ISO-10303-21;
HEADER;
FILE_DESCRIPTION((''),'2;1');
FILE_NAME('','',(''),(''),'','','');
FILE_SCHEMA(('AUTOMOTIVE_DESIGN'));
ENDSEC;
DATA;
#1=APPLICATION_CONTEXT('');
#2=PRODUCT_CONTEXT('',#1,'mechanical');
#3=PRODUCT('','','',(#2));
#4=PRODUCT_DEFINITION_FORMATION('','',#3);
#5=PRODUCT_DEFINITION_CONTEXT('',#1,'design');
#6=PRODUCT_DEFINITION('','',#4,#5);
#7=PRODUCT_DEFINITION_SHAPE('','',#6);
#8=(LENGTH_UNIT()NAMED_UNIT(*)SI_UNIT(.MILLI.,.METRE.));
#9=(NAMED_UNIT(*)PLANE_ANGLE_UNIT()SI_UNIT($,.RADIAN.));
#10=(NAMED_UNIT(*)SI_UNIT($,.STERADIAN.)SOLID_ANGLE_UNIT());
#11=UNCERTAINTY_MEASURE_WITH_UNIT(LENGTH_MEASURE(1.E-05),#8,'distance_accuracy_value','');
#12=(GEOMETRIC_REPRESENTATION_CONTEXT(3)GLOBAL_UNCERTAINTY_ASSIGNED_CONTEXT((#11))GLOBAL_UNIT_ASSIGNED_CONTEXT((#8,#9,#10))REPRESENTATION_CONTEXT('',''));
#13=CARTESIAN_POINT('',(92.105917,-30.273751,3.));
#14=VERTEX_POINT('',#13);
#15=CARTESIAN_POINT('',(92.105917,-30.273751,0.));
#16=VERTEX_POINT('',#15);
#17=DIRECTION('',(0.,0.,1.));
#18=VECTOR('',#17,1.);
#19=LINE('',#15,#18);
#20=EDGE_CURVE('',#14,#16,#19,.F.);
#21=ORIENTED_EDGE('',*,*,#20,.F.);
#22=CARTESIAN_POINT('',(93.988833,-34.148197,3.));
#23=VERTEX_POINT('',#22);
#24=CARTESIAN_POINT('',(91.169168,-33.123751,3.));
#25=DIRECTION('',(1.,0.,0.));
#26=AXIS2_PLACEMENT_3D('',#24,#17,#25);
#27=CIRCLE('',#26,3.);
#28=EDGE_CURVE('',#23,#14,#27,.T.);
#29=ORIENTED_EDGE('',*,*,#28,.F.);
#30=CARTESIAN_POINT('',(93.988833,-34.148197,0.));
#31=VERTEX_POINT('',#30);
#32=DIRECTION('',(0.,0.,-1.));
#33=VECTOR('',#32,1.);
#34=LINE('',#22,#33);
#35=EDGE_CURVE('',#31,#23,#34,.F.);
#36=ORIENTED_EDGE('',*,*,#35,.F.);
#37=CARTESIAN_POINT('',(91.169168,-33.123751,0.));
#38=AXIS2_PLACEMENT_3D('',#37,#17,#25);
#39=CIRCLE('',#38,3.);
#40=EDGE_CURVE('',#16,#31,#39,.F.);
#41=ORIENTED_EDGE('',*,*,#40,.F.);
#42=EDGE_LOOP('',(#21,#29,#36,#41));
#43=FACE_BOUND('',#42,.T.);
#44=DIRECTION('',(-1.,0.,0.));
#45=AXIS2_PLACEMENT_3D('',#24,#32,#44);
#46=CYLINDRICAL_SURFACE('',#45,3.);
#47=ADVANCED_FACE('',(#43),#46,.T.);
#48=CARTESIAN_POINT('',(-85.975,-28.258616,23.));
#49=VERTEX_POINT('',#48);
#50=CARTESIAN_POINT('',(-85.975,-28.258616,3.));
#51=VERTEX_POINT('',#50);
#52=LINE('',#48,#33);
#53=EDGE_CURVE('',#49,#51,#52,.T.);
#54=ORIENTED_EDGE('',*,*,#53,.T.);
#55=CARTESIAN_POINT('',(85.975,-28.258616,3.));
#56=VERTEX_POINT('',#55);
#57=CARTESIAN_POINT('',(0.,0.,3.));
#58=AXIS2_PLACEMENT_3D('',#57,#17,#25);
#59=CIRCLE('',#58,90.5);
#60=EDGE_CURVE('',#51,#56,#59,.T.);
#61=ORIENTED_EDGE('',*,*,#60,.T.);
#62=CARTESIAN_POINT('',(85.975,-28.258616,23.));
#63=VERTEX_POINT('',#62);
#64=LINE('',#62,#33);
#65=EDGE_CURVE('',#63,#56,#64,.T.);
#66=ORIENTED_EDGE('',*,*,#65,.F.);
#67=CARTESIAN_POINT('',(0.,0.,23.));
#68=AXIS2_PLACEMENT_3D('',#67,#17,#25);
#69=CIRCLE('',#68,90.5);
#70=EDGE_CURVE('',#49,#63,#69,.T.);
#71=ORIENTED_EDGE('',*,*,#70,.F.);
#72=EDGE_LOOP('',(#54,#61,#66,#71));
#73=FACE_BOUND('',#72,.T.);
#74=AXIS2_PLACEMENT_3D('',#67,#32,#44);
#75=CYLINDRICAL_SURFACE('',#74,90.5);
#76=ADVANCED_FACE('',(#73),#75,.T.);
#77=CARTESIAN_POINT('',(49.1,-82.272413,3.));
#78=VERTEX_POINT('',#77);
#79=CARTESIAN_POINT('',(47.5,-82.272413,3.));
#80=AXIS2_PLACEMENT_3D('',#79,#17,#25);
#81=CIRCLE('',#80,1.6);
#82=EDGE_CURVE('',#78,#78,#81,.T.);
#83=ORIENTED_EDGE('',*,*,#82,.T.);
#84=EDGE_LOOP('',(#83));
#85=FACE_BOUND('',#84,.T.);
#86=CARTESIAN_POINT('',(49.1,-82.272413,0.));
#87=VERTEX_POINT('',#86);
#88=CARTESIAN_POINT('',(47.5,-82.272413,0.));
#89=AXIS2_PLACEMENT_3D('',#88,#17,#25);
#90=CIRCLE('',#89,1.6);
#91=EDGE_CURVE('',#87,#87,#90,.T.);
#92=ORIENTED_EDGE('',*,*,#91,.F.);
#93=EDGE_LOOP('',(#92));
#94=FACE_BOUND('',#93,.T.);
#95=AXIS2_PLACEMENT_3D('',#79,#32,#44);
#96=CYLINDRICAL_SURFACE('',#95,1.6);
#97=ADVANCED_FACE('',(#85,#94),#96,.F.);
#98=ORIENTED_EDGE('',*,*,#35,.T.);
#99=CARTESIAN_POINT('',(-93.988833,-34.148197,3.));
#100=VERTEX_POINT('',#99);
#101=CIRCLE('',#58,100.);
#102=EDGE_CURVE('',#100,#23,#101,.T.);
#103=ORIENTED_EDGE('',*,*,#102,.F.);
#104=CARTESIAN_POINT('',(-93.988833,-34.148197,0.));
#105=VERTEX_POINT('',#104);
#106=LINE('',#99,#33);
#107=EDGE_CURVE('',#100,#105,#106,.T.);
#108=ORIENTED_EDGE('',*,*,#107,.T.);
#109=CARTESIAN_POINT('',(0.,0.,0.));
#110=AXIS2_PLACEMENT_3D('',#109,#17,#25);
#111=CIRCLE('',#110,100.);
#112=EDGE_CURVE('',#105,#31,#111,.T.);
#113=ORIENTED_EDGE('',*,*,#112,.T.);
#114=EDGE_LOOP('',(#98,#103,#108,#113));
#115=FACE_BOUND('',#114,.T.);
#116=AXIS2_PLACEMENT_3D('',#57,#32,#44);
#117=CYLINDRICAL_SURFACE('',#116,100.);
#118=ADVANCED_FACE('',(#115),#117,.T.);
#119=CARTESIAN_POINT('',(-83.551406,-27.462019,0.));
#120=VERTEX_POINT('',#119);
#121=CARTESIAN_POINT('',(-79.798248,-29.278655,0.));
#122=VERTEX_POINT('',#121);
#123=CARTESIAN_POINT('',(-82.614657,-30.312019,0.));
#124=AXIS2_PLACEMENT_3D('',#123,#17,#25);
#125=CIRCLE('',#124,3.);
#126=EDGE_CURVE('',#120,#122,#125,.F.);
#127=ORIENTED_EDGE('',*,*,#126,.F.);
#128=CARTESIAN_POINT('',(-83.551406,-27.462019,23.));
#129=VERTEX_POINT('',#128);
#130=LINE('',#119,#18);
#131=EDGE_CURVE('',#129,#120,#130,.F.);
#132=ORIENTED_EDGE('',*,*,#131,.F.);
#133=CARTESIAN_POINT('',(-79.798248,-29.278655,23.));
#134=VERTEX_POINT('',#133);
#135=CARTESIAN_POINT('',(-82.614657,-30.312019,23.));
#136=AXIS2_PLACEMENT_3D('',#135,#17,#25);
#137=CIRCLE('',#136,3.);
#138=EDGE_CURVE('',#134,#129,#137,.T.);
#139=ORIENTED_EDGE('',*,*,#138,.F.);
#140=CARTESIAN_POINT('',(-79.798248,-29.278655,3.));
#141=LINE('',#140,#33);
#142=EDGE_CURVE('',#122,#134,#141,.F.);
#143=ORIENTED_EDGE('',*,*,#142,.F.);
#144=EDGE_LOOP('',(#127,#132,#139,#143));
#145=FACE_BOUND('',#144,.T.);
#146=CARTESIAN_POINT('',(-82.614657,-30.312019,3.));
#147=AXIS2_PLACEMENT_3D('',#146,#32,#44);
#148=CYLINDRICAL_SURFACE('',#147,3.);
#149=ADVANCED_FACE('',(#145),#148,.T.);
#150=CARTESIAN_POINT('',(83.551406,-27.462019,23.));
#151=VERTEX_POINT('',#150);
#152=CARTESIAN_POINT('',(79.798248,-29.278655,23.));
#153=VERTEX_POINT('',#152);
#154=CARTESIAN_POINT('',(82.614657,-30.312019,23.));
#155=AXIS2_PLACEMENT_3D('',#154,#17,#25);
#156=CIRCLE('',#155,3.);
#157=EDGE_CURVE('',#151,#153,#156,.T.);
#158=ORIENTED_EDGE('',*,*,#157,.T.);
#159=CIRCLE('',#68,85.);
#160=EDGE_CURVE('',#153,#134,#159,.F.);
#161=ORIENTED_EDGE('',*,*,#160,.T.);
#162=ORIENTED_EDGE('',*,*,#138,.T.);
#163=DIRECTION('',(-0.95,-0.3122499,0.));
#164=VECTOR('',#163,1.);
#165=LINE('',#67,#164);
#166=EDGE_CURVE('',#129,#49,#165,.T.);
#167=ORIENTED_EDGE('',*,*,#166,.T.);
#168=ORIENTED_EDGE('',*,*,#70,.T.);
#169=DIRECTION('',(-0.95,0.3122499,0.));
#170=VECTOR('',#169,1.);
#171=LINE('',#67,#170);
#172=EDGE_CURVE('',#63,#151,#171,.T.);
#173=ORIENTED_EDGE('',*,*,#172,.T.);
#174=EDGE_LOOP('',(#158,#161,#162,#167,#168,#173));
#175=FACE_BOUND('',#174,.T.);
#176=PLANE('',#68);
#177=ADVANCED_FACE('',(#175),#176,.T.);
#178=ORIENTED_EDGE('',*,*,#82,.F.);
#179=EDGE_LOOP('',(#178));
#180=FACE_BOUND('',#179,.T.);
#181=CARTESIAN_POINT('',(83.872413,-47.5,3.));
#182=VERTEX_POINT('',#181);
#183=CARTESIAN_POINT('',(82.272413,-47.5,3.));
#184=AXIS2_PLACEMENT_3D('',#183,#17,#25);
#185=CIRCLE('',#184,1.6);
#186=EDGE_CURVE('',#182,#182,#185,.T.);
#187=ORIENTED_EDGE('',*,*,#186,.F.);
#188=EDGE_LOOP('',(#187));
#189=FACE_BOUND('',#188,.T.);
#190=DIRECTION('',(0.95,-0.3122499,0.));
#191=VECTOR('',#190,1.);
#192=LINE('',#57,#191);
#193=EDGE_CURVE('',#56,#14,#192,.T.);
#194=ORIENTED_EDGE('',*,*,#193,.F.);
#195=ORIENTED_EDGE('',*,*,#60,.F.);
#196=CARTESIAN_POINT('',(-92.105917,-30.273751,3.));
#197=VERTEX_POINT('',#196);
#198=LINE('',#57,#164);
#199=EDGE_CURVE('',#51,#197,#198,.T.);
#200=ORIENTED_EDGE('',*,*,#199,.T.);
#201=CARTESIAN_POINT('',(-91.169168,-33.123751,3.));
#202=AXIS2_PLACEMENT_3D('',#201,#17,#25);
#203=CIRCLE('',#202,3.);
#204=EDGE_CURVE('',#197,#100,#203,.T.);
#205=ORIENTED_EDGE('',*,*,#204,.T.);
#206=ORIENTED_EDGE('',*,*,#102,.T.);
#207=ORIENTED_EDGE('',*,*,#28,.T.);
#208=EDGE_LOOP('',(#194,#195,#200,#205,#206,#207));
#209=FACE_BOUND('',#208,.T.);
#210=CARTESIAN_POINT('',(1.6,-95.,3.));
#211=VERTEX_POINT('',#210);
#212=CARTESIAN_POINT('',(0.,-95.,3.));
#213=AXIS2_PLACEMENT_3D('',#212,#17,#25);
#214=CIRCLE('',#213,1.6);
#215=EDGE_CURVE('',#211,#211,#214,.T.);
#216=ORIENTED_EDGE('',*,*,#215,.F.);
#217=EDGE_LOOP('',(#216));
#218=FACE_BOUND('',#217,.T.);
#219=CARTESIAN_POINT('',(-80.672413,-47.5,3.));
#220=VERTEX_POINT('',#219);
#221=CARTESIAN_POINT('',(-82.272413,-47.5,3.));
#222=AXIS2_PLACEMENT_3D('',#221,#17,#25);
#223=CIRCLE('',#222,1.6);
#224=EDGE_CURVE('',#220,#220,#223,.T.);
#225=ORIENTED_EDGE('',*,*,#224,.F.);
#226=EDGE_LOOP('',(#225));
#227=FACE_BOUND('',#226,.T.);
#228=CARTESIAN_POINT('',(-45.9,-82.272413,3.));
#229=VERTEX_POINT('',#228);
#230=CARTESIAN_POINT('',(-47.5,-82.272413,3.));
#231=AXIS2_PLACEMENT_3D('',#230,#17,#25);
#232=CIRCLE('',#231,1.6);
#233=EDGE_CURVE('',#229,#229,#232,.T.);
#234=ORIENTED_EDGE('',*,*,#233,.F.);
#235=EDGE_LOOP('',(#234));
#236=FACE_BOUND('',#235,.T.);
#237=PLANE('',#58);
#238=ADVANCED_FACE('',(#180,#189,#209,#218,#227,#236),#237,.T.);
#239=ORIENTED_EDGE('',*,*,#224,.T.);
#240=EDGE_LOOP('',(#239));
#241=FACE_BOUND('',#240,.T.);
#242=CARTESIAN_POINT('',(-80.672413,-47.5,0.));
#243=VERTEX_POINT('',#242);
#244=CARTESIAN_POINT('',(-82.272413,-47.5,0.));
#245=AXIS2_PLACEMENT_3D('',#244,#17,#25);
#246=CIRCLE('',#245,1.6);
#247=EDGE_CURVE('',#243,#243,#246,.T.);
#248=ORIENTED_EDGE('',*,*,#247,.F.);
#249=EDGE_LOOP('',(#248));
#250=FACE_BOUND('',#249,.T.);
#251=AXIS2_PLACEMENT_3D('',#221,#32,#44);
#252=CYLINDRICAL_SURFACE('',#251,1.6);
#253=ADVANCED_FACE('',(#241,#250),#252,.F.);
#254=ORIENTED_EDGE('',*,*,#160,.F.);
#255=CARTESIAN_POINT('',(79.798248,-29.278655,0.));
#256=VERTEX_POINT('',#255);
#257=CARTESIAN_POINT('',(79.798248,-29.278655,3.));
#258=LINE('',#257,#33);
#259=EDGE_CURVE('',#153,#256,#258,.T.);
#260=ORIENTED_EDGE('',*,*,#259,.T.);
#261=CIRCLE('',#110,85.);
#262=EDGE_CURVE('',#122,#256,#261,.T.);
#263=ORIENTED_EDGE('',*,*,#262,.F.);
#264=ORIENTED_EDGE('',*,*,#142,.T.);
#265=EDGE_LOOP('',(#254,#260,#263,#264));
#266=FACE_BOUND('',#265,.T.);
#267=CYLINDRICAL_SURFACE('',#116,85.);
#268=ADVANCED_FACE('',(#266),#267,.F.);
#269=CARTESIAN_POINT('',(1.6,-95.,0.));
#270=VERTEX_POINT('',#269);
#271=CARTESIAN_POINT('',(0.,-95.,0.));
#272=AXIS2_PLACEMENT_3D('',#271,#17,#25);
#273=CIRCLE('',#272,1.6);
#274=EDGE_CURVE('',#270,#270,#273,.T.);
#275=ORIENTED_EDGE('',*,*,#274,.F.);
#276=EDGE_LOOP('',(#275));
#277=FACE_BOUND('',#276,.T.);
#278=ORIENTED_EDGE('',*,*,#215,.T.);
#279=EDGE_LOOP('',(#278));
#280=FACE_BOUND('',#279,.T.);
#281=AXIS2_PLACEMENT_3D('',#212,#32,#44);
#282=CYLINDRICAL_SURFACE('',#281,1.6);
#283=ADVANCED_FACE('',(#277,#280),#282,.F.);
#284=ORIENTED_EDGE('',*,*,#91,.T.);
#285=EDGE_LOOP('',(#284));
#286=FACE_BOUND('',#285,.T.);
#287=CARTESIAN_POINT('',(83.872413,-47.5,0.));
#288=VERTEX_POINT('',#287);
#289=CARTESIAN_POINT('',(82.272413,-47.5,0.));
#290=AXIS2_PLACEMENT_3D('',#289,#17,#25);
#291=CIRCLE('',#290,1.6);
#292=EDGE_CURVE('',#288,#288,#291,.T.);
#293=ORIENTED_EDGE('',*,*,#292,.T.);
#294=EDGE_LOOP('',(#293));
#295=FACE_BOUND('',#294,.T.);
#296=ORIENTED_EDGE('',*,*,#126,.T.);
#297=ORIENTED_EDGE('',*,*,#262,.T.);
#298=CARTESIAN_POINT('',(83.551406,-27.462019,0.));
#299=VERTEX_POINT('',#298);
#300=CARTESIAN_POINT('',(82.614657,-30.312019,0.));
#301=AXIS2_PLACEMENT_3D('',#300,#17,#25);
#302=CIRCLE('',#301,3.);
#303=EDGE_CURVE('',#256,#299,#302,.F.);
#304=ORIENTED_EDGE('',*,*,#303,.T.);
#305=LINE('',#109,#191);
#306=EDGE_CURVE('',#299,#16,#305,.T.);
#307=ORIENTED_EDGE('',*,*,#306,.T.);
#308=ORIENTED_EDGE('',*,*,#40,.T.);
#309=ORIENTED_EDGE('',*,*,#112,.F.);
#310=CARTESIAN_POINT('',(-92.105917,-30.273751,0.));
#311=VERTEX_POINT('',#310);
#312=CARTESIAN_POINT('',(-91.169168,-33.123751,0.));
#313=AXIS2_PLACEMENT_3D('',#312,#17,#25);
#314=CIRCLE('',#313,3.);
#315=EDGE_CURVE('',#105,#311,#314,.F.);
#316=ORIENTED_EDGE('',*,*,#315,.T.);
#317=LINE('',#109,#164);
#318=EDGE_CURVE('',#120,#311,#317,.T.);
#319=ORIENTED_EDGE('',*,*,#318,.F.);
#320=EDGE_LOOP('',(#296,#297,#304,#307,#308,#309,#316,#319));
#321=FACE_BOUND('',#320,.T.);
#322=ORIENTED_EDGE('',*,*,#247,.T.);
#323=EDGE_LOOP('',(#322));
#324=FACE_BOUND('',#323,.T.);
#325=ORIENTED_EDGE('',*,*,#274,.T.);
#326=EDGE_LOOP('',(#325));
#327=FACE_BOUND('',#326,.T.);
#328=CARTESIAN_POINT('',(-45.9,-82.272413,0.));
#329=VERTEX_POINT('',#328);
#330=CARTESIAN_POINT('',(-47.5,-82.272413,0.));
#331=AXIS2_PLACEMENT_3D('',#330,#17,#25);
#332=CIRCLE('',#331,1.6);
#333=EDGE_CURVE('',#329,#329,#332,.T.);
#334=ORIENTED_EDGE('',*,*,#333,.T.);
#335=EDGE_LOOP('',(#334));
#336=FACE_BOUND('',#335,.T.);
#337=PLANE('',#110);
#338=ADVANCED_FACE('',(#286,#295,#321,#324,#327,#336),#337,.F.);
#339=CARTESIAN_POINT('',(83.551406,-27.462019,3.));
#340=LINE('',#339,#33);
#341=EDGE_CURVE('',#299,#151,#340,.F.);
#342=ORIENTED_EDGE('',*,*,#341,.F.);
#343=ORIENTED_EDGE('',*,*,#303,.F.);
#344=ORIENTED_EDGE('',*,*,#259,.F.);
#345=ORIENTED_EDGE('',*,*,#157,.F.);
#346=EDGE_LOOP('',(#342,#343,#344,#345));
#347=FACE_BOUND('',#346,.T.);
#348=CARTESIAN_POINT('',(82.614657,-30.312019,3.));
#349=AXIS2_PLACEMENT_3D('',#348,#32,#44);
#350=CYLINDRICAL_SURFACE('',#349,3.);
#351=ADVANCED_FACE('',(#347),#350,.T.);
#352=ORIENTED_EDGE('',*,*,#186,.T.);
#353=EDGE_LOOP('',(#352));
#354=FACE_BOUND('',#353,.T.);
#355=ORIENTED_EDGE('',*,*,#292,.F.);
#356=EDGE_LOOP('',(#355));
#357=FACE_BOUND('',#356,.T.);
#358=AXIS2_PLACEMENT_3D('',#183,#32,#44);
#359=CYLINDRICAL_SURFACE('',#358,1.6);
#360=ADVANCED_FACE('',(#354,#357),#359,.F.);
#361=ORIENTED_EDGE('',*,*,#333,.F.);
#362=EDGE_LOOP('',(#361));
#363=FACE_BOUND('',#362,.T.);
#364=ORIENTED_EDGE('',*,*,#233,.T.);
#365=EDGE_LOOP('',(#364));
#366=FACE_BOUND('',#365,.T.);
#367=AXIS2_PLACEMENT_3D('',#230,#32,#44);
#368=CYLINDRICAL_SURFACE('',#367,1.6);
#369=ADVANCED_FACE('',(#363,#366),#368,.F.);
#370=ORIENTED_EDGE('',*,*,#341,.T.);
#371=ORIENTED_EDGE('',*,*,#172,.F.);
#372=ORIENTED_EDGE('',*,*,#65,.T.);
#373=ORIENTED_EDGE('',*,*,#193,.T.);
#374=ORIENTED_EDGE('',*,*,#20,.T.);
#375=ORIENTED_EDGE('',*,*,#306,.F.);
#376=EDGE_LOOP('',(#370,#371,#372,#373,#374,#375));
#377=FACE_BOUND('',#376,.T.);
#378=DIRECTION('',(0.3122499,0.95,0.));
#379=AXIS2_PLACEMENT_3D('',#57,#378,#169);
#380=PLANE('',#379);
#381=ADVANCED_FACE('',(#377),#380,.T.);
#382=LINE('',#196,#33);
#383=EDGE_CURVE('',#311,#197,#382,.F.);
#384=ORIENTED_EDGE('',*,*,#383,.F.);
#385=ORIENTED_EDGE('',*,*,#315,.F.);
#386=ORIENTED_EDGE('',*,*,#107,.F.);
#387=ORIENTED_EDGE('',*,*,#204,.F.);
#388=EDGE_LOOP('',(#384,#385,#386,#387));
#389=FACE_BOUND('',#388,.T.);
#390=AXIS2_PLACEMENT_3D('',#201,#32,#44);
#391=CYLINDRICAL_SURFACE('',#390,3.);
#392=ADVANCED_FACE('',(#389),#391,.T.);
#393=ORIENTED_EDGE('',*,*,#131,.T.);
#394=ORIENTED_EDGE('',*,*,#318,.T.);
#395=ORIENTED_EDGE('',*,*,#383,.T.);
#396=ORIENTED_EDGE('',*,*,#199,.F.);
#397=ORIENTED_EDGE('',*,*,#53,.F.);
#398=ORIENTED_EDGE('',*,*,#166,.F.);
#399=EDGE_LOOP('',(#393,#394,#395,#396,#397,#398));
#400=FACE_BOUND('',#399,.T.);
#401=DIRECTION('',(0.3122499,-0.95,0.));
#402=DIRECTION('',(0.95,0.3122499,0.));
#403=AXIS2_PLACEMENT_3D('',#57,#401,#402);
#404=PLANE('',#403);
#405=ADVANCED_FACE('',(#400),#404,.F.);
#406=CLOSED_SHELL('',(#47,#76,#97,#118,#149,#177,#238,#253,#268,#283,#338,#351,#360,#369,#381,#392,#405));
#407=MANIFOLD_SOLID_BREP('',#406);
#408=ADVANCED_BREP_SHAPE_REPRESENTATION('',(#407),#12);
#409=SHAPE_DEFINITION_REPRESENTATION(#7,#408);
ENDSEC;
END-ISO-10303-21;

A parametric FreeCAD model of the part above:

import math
import FreeCAD as App
import Part
import Sketcher
Q = App.Units.Quantity


def edges_at(feature, points):
    """Names of the edges that pass closest to the given points."""
    edges = feature.Shape.Edges
    near = lambda p: min(range(len(edges)), key=lambda i: edges[i].distToShape(Part.Vertex(*p))[0])
    return sorted({f"Edge{near(p) + 1}" for p in points})

doc = App.newDocument("Part")
params = doc.addObject("Spreadsheet::Sheet", "Params")
for row, (alias, value) in enumerate([
    ("sketch1_radius", "85 mm"),
    ("sketch1_radius2", "100 mm"),
    ("sketch1_diameter", "3.2 mm"),
    ("pad1_length", "3 mm"),
    ("sketch2_radius", "85 mm"),
    ("sketch2_radius2", "90.5 mm"),
    ("pad2_length", "20 mm"),
    ("fillet_radius", "3 mm"),
], start=1):
    params.set(f"A{row}", alias)
    params.set(f"B{row}", "=" + value)
    params.setAlias(f"B{row}", alias)

body = doc.addObject("PartDesign::Body", "Body")

# Sketch on XY plane
sketch1 = body.newObject("Sketcher::SketchObject", "Sketch")
sketch1.AttachmentSupport = (doc.getObject("XY_Plane"), [""])
sketch1.MapMode = "FlatFace"
sketch1.addGeometry(Part.ArcOfCircle(Part.Circle(App.Vector(0, 0, 0), App.Vector(0, 0, 1), 85), math.radians(-161.805128), math.radians(-18.194872)), False)
sketch1.addGeometry(Part.LineSegment(App.Vector(-80.75, -26.541241, 0), App.Vector(-95, -31.22499, 0)), False)
sketch1.addGeometry(Part.ArcOfCircle(Part.Circle(App.Vector(0, 0, 0), App.Vector(0, 0, 1), 100), math.radians(-161.805128), math.radians(-18.194872)), False)
sketch1.addGeometry(Part.LineSegment(App.Vector(95, -31.22499, 0), App.Vector(80.75, -26.541241, 0)), False)
sketch1.addGeometry(Part.Circle(App.Vector(-47.5, -82.272413, 0), App.Vector(0, 0, 1), 1.6), False)
sketch1.addGeometry(Part.Circle(App.Vector(0, -95, 0), App.Vector(0, 0, 1), 1.6), False)
sketch1.addGeometry(Part.Circle(App.Vector(47.5, -82.272413, 0), App.Vector(0, 0, 1), 1.6), False)
sketch1.addGeometry(Part.Circle(App.Vector(-82.272413, -47.5, 0), App.Vector(0, 0, 1), 1.6), False)
sketch1.addGeometry(Part.Circle(App.Vector(82.272413, -47.5, 0), App.Vector(0, 0, 1), 1.6), False)
sketch1.addConstraint(Sketcher.Constraint("Coincident", 0, 1, 1, 1))
sketch1.addConstraint(Sketcher.Constraint("Coincident", 1, 2, 2, 1))
sketch1.addConstraint(Sketcher.Constraint("Coincident", 2, 2, 3, 1))
sketch1.addConstraint(Sketcher.Constraint("Coincident", 3, 2, 0, 2))
sketch1.addConstraint(Sketcher.Constraint("Coincident", 0, 3, -1, 1))
sketch1.addConstraint(Sketcher.Constraint("Coincident", 2, 3, -1, 1))
sketch1.addConstraint(Sketcher.Constraint("Equal", 4, 5))
sketch1.addConstraint(Sketcher.Constraint("Equal", 5, 6))
sketch1.addConstraint(Sketcher.Constraint("Equal", 6, 7))
sketch1.addConstraint(Sketcher.Constraint("Equal", 7, 8))
sketch1.addConstraint(Sketcher.Constraint("Symmetric", 4, 3, 6, 3, -2))
sketch1.addConstraint(Sketcher.Constraint("Symmetric", 7, 3, 8, 3, -2))
sketch1.addConstraint(Sketcher.Constraint("PointOnObject", 5, 3, -2))
sketch1.addConstraint(Sketcher.Constraint("Horizontal", 1, 2, 2, 2))
sketch1.addConstraint(Sketcher.Constraint("Horizontal", 0, 1, 3, 2))
sketch1.addConstraint(Sketcher.Constraint("Radius", 0, Q("85 mm")))
sketch1.addConstraint(Sketcher.Constraint("Radius", 2, Q("100 mm")))
sketch1.addConstraint(Sketcher.Constraint("Diameter", 4, Q("3.2 mm")))
sketch1.addConstraint(Sketcher.Constraint("DistanceY", 5, 3, -1, 1, Q("95 mm")))
sketch1.addConstraint(Sketcher.Constraint("DistanceX", 1, 2, -1, 1, Q("95 mm")))
sketch1.addConstraint(Sketcher.Constraint("DistanceX", 4, 3, 6, 3, Q("95 mm")))
sketch1.addConstraint(Sketcher.Constraint("DistanceY", 7, 3, -1, 1, Q("47.5 mm")))
sketch1.addConstraint(Sketcher.Constraint("DistanceX", 0, 1, -1, 1, Q("80.75 mm")))
sketch1.addConstraint(Sketcher.Constraint("DistanceY", 4, 3, 0, 1, Q("55.731172 mm")))
sketch1.addConstraint(Sketcher.Constraint("DistanceX", 7, 3, -1, 1, Q("82.272413 mm")))
sketch1.setExpression("Constraints[15]", "Params.sketch1_radius")
sketch1.setExpression("Constraints[16]", "Params.sketch1_radius2")
sketch1.setExpression("Constraints[17]", "Params.sketch1_diameter")
pad1 = body.newObject("PartDesign::Pad", "Pad")
pad1.Profile = sketch1
pad1.setExpression("Length", "Params.pad1_length")

# Sketch on XY plane
sketch2 = body.newObject("Sketcher::SketchObject", "Sketch001")
sketch2.AttachmentSupport = (doc.getObject("XY_Plane"), [""])
sketch2.MapMode = "FlatFace"
sketch2.AttachmentOffset = App.Placement(App.Vector(0, 0, 3), App.Rotation())
sketch2.addGeometry(Part.ArcOfCircle(Part.Circle(App.Vector(0, 0, 0), App.Vector(0, 0, 1), 85), math.radians(-161.805128), math.radians(-18.194872)), False)
sketch2.addGeometry(Part.LineSegment(App.Vector(-80.75, -26.541241, 0), App.Vector(-85.975, -28.258616, 0)), False)
sketch2.addGeometry(Part.ArcOfCircle(Part.Circle(App.Vector(0, 0, 0), App.Vector(0, 0, 1), 90.5), math.radians(-161.805128), math.radians(-18.194872)), False)
sketch2.addGeometry(Part.LineSegment(App.Vector(85.975, -28.258616, 0), App.Vector(80.75, -26.541241, 0)), False)
sketch2.addConstraint(Sketcher.Constraint("Coincident", 0, 1, 1, 1))
sketch2.addConstraint(Sketcher.Constraint("Coincident", 1, 2, 2, 1))
sketch2.addConstraint(Sketcher.Constraint("Coincident", 2, 2, 3, 1))
sketch2.addConstraint(Sketcher.Constraint("Coincident", 3, 2, 0, 2))
sketch2.addConstraint(Sketcher.Constraint("Coincident", 0, 3, -1, 1))
sketch2.addConstraint(Sketcher.Constraint("Coincident", 2, 3, -1, 1))
sketch2.addConstraint(Sketcher.Constraint("Horizontal", 1, 2, 2, 2))
sketch2.addConstraint(Sketcher.Constraint("Horizontal", 0, 1, 3, 2))
sketch2.addConstraint(Sketcher.Constraint("Radius", 0, Q("85 mm")))
sketch2.addConstraint(Sketcher.Constraint("Radius", 2, Q("90.5 mm")))
sketch2.addConstraint(Sketcher.Constraint("DistanceX", 0, 1, 3, 2, Q("161.5 mm")))
sketch2.addConstraint(Sketcher.Constraint("DistanceX", 1, 2, 2, 2, Q("171.95 mm")))
sketch2.setExpression("Constraints[8]", "Params.sketch2_radius")
sketch2.setExpression("Constraints[9]", "Params.sketch2_radius2")
pad2 = body.newObject("PartDesign::Pad", "Pad001")
pad2.Profile = sketch2
pad2.setExpression("Length", "Params.pad2_length")
doc.recompute()

fillet = body.newObject("PartDesign::Fillet", "Fillet")
fillet.Base = (pad2, edges_at(pad2, [
    (80.75, -26.541, 13),
    (95, -31.225, 1.5),
    (-95, -31.225, 1.5),
    (-80.75, -26.541, 13),
]))
fillet.setExpression("Radius", "Params.fillet_radius")

doc.recompute()
